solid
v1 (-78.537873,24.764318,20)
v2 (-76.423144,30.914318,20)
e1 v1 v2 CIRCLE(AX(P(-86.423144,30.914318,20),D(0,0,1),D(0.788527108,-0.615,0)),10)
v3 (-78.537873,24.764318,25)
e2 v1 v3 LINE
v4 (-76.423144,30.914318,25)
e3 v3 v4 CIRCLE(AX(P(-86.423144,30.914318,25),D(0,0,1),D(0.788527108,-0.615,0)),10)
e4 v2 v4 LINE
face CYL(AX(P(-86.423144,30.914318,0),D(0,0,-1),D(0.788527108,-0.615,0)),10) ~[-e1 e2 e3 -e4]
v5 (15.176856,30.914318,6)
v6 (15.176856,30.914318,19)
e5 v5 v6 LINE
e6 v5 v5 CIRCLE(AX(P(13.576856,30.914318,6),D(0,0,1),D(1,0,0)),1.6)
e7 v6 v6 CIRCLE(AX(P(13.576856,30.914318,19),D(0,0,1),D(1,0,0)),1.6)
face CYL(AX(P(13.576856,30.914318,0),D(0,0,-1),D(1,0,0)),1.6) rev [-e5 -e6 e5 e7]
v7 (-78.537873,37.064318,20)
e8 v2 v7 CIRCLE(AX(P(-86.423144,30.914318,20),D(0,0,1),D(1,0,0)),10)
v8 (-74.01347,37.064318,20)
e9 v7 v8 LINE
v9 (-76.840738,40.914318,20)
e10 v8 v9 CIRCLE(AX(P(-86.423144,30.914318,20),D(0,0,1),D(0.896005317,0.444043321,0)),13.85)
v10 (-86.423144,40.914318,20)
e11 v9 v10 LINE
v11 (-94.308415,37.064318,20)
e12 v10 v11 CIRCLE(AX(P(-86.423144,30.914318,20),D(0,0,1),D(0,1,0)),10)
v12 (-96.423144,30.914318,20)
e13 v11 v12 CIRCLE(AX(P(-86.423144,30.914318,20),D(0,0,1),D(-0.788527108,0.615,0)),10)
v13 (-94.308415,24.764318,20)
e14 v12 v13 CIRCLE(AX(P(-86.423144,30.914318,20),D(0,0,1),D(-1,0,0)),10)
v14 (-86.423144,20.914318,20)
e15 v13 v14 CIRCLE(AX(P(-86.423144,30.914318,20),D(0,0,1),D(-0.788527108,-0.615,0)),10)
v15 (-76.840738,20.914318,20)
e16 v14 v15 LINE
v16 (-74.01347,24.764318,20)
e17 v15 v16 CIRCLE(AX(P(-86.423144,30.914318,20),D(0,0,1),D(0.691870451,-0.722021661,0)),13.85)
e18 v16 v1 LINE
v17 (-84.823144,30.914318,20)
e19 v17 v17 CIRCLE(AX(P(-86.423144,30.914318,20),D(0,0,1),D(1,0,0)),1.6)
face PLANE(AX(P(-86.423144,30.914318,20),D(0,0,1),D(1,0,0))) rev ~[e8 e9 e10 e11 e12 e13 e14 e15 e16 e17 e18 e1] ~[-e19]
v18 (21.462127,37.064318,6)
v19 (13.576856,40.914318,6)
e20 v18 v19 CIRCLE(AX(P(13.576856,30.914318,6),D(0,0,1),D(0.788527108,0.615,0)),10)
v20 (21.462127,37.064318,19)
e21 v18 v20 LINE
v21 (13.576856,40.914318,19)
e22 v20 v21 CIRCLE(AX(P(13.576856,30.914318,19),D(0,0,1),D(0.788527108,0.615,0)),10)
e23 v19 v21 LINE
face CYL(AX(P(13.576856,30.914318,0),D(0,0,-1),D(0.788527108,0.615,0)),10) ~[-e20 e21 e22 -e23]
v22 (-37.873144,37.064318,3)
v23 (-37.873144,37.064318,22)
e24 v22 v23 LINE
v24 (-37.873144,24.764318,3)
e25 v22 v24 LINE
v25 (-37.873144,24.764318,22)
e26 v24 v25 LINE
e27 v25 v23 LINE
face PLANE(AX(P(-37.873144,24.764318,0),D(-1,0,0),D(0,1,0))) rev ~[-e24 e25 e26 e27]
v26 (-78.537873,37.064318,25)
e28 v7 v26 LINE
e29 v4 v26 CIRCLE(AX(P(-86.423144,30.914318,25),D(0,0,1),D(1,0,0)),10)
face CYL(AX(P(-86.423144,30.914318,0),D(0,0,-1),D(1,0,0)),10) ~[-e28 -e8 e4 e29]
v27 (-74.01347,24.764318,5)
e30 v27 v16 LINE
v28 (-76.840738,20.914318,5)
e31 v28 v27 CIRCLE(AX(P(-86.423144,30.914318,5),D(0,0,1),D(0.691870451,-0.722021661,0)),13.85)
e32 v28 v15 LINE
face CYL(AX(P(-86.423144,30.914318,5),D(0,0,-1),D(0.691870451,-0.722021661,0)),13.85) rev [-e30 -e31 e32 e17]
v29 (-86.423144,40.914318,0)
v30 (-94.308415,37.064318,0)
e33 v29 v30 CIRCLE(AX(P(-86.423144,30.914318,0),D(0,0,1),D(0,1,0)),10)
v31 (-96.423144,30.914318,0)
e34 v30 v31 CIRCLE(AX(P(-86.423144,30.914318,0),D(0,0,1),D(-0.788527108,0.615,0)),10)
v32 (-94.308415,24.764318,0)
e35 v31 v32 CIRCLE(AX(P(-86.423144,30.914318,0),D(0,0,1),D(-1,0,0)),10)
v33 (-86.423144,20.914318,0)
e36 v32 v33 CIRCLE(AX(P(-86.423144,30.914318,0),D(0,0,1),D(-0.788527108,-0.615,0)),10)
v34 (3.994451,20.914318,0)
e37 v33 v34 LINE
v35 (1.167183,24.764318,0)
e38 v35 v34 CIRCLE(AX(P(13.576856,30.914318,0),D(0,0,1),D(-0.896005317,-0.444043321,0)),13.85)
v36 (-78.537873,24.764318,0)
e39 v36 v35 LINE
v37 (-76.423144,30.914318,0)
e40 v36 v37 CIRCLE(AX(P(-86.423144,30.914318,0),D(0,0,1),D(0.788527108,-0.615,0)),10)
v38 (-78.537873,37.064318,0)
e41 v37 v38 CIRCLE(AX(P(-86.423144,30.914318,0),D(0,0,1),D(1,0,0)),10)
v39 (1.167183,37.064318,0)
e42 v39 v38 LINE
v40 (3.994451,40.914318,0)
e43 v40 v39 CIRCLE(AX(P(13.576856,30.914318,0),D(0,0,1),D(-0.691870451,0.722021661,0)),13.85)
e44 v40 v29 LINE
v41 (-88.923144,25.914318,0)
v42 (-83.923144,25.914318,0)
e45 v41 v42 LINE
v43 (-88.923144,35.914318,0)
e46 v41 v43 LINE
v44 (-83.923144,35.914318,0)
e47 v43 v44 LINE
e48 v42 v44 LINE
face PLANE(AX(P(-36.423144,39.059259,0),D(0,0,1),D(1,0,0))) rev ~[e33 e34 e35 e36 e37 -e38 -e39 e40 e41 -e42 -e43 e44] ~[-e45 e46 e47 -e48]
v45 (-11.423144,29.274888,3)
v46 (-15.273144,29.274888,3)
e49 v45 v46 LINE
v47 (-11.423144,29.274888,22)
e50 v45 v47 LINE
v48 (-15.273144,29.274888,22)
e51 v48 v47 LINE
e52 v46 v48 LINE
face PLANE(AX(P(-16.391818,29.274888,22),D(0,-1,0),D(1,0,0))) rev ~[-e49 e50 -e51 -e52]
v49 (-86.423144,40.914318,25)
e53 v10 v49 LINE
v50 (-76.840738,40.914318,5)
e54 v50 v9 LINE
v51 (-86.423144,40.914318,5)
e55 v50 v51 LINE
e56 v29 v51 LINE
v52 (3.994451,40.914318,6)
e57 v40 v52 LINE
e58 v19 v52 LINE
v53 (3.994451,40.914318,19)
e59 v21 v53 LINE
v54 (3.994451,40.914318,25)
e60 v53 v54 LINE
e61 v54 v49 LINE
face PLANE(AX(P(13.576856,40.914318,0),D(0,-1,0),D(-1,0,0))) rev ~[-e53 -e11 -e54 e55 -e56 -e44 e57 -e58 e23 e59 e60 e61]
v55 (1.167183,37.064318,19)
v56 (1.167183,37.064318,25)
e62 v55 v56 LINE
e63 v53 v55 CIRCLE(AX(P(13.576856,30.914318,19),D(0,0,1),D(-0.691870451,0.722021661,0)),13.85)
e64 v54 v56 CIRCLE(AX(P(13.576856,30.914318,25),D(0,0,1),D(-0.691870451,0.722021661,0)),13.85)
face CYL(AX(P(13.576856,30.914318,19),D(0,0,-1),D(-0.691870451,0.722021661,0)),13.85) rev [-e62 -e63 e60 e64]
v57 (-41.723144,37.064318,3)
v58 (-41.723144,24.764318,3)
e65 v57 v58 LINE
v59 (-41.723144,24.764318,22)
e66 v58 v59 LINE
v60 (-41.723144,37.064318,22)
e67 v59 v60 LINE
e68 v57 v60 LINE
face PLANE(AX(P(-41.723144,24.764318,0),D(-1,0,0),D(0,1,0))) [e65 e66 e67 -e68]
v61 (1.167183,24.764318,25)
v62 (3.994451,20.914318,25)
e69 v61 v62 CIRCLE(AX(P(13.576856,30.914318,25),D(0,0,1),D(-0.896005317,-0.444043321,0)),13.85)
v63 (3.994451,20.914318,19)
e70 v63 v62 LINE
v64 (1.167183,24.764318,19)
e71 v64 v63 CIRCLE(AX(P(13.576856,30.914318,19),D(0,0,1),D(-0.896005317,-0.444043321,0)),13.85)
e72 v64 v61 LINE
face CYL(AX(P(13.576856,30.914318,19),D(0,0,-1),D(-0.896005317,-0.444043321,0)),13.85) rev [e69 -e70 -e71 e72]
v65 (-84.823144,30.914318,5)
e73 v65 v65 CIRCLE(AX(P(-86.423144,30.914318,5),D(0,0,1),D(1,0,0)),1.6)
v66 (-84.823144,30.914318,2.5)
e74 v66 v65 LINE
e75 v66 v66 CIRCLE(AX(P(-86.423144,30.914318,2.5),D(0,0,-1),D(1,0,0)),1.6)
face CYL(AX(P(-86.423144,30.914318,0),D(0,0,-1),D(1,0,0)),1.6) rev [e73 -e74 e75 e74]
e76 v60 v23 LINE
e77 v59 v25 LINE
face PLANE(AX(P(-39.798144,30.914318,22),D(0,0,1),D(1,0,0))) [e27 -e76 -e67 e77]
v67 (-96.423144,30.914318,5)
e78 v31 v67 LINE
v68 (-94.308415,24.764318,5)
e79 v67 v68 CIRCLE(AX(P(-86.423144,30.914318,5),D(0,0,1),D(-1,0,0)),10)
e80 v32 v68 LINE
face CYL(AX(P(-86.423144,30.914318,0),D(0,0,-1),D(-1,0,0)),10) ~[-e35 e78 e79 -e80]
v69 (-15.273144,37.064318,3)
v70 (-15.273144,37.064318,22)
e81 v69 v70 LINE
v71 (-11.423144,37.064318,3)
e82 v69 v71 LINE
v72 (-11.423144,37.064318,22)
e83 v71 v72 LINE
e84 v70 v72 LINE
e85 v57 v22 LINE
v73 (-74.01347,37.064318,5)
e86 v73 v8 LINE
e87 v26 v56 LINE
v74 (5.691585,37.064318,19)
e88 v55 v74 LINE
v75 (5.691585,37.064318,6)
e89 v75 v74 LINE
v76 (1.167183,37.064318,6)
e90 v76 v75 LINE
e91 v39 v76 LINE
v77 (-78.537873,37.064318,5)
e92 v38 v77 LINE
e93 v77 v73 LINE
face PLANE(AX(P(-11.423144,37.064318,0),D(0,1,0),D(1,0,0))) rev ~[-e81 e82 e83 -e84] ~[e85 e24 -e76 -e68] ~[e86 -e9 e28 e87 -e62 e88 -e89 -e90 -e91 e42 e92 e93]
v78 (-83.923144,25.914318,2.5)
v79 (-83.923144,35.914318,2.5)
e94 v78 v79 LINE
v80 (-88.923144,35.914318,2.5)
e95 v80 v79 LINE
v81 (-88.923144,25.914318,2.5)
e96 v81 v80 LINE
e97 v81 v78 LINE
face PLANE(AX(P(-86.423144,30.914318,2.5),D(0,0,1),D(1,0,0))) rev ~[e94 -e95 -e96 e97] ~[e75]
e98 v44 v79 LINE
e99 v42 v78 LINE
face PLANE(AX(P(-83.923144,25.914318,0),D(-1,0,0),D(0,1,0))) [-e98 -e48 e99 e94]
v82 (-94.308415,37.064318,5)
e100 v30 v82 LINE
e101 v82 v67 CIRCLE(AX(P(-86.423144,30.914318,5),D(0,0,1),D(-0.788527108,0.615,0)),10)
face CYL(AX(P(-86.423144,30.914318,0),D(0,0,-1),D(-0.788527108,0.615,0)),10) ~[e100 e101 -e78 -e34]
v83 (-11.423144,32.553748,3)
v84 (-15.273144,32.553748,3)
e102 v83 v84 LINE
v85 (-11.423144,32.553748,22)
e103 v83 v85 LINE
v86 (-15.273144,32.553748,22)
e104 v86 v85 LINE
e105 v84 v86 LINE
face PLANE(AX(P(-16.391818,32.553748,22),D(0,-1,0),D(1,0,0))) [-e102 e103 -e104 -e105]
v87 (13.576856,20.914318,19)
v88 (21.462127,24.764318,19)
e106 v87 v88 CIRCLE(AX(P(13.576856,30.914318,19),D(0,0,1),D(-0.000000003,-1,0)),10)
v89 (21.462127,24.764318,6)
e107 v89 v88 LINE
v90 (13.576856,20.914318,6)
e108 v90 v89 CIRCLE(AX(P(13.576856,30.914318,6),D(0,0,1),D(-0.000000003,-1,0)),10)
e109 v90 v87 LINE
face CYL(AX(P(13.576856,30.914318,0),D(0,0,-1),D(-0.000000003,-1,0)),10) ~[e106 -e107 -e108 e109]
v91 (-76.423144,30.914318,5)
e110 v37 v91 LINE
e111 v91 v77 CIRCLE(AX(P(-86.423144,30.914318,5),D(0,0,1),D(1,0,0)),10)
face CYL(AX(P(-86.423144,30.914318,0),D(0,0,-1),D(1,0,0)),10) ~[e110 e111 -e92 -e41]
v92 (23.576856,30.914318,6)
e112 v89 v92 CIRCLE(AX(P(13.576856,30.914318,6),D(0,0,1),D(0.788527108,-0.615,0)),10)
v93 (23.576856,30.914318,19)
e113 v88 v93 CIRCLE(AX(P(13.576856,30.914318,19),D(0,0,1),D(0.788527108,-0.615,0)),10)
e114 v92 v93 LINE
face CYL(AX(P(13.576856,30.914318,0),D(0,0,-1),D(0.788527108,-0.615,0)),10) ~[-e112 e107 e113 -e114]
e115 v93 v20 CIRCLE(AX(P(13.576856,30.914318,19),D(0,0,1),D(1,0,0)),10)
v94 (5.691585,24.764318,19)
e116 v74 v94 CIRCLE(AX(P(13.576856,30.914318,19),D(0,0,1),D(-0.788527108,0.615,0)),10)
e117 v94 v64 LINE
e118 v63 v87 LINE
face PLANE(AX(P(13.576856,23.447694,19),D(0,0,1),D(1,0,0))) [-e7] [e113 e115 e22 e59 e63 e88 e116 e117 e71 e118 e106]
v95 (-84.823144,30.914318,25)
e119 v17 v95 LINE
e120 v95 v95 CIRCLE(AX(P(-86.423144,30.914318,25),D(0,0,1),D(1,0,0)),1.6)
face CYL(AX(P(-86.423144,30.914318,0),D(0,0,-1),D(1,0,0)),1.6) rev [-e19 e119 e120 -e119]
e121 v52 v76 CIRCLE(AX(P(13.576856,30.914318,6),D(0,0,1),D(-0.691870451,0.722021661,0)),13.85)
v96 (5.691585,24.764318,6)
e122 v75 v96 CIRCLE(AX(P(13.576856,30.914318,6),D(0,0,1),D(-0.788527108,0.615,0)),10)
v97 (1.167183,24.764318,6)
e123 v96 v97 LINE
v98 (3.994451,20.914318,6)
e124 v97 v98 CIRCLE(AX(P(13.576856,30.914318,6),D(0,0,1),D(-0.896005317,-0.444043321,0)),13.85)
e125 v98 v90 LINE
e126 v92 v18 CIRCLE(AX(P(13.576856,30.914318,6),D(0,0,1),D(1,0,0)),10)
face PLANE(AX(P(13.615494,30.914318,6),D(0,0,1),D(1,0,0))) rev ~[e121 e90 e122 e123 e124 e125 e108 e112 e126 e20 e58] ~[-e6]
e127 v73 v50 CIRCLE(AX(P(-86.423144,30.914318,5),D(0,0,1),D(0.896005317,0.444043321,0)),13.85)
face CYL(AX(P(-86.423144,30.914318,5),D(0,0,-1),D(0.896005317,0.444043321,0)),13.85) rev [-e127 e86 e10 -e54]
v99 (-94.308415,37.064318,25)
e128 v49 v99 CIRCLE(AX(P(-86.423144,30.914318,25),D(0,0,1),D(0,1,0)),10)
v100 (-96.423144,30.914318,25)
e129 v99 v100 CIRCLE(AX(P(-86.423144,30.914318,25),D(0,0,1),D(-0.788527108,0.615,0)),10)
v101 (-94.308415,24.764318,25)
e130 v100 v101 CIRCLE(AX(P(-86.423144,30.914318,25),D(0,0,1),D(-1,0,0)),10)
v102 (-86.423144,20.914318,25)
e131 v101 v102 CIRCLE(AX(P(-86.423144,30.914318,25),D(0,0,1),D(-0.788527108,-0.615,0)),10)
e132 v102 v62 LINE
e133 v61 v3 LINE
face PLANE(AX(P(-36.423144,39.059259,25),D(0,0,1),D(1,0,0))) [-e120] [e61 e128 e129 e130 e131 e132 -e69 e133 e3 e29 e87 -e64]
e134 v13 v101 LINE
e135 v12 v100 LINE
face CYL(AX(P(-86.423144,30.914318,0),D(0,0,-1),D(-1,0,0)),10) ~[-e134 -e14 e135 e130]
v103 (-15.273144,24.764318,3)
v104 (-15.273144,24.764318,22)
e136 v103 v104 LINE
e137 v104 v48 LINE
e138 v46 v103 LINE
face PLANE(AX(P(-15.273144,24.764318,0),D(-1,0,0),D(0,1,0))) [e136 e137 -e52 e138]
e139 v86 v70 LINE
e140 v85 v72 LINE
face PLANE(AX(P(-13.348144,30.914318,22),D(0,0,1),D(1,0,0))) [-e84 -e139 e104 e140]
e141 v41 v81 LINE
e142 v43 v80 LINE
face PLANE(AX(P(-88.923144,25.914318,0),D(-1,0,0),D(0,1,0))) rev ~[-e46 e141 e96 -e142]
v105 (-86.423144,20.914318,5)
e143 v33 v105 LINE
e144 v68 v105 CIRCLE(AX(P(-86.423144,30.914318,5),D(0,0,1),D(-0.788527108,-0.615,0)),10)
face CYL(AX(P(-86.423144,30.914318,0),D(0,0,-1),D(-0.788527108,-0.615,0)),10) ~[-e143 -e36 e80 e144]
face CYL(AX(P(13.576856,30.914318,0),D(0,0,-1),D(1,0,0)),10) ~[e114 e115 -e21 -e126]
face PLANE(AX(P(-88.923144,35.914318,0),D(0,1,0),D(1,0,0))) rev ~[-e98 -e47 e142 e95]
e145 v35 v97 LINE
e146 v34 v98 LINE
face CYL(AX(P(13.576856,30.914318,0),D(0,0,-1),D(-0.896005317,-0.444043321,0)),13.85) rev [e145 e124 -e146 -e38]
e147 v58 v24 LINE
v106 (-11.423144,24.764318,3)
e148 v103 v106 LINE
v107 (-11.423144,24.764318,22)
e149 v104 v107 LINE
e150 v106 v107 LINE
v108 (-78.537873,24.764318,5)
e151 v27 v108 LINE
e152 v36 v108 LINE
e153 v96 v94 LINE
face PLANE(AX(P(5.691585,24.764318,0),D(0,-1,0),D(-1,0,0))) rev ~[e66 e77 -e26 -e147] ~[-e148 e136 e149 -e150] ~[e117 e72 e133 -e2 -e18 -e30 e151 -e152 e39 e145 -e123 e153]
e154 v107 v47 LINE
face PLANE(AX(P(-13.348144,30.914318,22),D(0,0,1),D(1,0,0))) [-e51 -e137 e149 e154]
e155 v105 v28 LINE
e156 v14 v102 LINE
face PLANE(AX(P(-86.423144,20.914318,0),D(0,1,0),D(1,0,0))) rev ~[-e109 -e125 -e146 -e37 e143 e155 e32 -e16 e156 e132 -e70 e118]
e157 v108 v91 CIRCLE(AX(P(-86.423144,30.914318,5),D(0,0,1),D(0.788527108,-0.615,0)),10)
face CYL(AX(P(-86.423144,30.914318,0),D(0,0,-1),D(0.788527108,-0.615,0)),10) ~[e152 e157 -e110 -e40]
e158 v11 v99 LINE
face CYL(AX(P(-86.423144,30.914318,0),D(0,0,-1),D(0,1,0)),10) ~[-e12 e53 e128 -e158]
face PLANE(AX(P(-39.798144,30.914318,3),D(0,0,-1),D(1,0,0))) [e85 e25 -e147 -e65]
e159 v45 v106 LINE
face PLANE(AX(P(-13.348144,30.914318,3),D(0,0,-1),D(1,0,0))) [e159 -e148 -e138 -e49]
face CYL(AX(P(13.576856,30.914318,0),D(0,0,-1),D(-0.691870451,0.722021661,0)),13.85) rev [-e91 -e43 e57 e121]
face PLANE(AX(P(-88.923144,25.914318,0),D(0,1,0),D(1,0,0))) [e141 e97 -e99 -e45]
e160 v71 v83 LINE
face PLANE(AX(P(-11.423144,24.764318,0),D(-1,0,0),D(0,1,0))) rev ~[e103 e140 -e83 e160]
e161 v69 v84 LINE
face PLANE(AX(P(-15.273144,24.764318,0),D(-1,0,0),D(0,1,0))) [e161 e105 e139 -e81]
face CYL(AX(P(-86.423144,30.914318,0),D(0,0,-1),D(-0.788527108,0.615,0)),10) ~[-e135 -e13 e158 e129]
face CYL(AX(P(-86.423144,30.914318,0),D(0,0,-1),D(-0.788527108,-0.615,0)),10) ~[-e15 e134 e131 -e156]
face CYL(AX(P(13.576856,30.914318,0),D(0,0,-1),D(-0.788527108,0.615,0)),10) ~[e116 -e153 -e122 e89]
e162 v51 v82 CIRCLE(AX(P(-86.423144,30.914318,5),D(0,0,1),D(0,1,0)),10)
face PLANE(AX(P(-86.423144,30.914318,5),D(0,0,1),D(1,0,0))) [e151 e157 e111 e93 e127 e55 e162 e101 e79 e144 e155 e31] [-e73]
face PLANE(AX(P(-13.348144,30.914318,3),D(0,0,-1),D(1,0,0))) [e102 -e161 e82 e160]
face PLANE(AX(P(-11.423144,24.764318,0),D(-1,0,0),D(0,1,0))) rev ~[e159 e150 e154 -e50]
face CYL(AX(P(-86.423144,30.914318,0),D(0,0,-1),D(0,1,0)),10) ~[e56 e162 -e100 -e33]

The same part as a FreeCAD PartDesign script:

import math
import FreeCAD as App
import Part
import Sketcher


def add_polygon(sketch, points):
    """Adds a closed chain of lines whose ends are joined by coincident constraints."""
    first, n = sketch.GeometryCount, len(points)
    for a, b in zip(points, points[1:] + points[:1]):
        sketch.addGeometry(Part.LineSegment(App.Vector(*a, 0), App.Vector(*b, 0)), False)
    for i in range(n):
        sketch.addConstraint(Sketcher.Constraint("Coincident", first + i, 2, first + (i + 1) % n, 1))

doc = App.newDocument("Part")
body = doc.addObject("PartDesign::Body", "Body")

# Sketch on XY plane
sketch1 = body.newObject("Sketcher::SketchObject", "Sketch")
sketch1.AttachmentSupport = (doc.getObject("XY_Plane"), [""])
sketch1.MapMode = "FlatFace"
sketch1.addGeometry(Part.ArcOfCircle(Part.Circle(App.Vector(-86.4, 30.9, 0), App.Vector(0, 0, 1), 10), math.radians(90), math.radians(142)), False)  # 0
sketch1.addGeometry(Part.ArcOfCircle(Part.Circle(App.Vector(-86.4, 30.9, 0), App.Vector(0, 0, 1), 10), math.radians(142), math.radians(180)), False)  # 1
sketch1.addGeometry(Part.ArcOfCircle(Part.Circle(App.Vector(-86.4, 30.9, 0), App.Vector(0, 0, 1), 10), math.radians(180), math.radians(218)), False)  # 2
sketch1.addGeometry(Part.ArcOfCircle(Part.Circle(App.Vector(-86.4, 30.9, 0), App.Vector(0, 0, 1), 10), math.radians(-142), math.radians(-90)), False)  # 3
sketch1.addGeometry(Part.LineSegment(App.Vector(-86.4, 20.9, 0), App.Vector(13.6, 20.9, 0)), False)  # 4
sketch1.addGeometry(Part.ArcOfCircle(Part.Circle(App.Vector(13.6, 30.9, 0), App.Vector(0, 0, 1), 10), math.radians(-90), math.radians(-38)), False)  # 5
sketch1.addGeometry(Part.ArcOfCircle(Part.Circle(App.Vector(13.6, 30.9, 0), App.Vector(0, 0, 1), 10), math.radians(-38), math.radians(0)), False)  # 6
sketch1.addGeometry(Part.ArcOfCircle(Part.Circle(App.Vector(13.6, 30.9, 0), App.Vector(0, 0, 1), 10), math.radians(0), math.radians(38)), False)  # 7
sketch1.addGeometry(Part.ArcOfCircle(Part.Circle(App.Vector(13.6, 30.9, 0), App.Vector(0, 0, 1), 10), math.radians(38), math.radians(90)), False)  # 8
sketch1.addGeometry(Part.LineSegment(App.Vector(13.6, 40.9, 0), App.Vector(-86.4, 40.9, 0)), False)  # 9
sketch1.addGeometry(Part.LineSegment(App.Vector(-11.4, 24.8, 0), App.Vector(-11.4, 37.1, 0)), False)  # 10
sketch1.addGeometry(Part.LineSegment(App.Vector(-11.4, 37.1, 0), App.Vector(5.7, 37.1, 0)), False)  # 11
sketch1.addGeometry(Part.ArcOfCircle(Part.Circle(App.Vector(13.6, 30.9, 0), App.Vector(0, 0, 1), 10), math.radians(142), math.radians(218)), False)  # 12
sketch1.addGeometry(Part.LineSegment(App.Vector(5.7, 24.8, 0), App.Vector(-11.4, 24.8, 0)), False)  # 13
add_polygon(sketch1, [(-15.3, 24.8), (-37.9, 24.8), (-37.9, 37.1), (-15.3, 37.1)])  # lines 14-17
sketch1.addGeometry(Part.LineSegment(App.Vector(-41.7, 24.8, 0), App.Vector(-78.5, 24.8, 0)), False)  # 18
sketch1.addGeometry(Part.ArcOfCircle(Part.Circle(App.Vector(-86.4, 30.9, 0), App.Vector(0, 0, 1), 10), math.radians(-38), math.radians(0)), False)  # 19
sketch1.addGeometry(Part.ArcOfCircle(Part.Circle(App.Vector(-86.4, 30.9, 0), App.Vector(0, 0, 1), 10), math.radians(0), math.radians(38)), False)  # 20
sketch1.addGeometry(Part.LineSegment(App.Vector(-78.5, 37.1, 0), App.Vector(-41.7, 37.1, 0)), False)  # 21
sketch1.addGeometry(Part.LineSegment(App.Vector(-41.7, 37.1, 0), App.Vector(-41.7, 24.8, 0)), False)  # 22
sketch1.addGeometry(Part.Circle(App.Vector(-86.4, 30.9, 0), App.Vector(0, 0, 1), 1.6), False)  # 23
sketch1.addGeometry(Part.Circle(App.Vector(13.6, 30.9, 0), App.Vector(0, 0, 1), 1.6), False)  # 24
sketch1.addConstraint(Sketcher.Constraint("Tangent", 0, 2, 1, 1))
sketch1.addConstraint(Sketcher.Constraint("Tangent", 1, 2, 2, 1))
sketch1.addConstraint(Sketcher.Constraint("Tangent", 2, 2, 3, 1))
sketch1.addConstraint(Sketcher.Constraint("Tangent", 3, 2, 4, 1))
sketch1.addConstraint(Sketcher.Constraint("Tangent", 4, 2, 5, 1))
sketch1.addConstraint(Sketcher.Constraint("Tangent", 5, 2, 6, 1))
sketch1.addConstraint(Sketcher.Constraint("Tangent", 6, 2, 7, 1))
sketch1.addConstraint(Sketcher.Constraint("Tangent", 7, 2, 8, 1))
sketch1.addConstraint(Sketcher.Constraint("Tangent", 8, 2, 9, 1))
sketch1.addConstraint(Sketcher.Constraint("Tangent", 9, 2, 0, 1))
sketch1.addConstraint(Sketcher.Constraint("Coincident", 10, 2, 11, 1))
sketch1.addConstraint(Sketcher.Constraint("Coincident", 11, 2, 12, 1))
sketch1.addConstraint(Sketcher.Constraint("Coincident", 12, 2, 13, 1))
sketch1.addConstraint(Sketcher.Constraint("Coincident", 13, 2, 10, 1))
sketch1.addConstraint(Sketcher.Constraint("Coincident", 18, 2, 19, 1))
sketch1.addConstraint(Sketcher.Constraint("Tangent", 19, 2, 20, 1))
sketch1.addConstraint(Sketcher.Constraint("Coincident", 20, 2, 21, 1))
sketch1.addConstraint(Sketcher.Constraint("Coincident", 21, 2, 22, 1))
sketch1.addConstraint(Sketcher.Constraint("Coincident", 22, 2, 18, 1))
sketch1.addConstraint(Sketcher.Constraint("Horizontal", 4))
sketch1.addConstraint(Sketcher.Constraint("Horizontal", 9))
sketch1.addConstraint(Sketcher.Constraint("Vertical", 10))
sketch1.addConstraint(Sketcher.Constraint("Horizontal", 11))
sketch1.addConstraint(Sketcher.Constraint("Horizontal", 13))
sketch1.addConstraint(Sketcher.Constraint("Horizontal", 14))
sketch1.addConstraint(Sketcher.Constraint("Vertical", 15))
sketch1.addConstraint(Sketcher.Constraint("Horizontal", 16))
sketch1.addConstraint(Sketcher.Constraint("Vertical", 17))
sketch1.addConstraint(Sketcher.Constraint("Horizontal", 18))
sketch1.addConstraint(Sketcher.Constraint("Horizontal", 21))
sketch1.addConstraint(Sketcher.Constraint("Vertical", 22))
sketch1.addConstraint(Sketcher.Constraint("Coincident", 2, 3, 0, 3))
sketch1.addConstraint(Sketcher.Constraint("Coincident", 7, 3, 5, 3))
sketch1.addConstraint(Sketcher.Constraint("Coincident", 12, 3, 5, 3))
sketch1.addConstraint(Sketcher.Constraint("Coincident", 19, 3, 0, 3))
sketch1.addConstraint(Sketcher.Constraint("Coincident", 23, 3, 0, 3))
sketch1.addConstraint(Sketcher.Constraint("Coincident", 24, 3, 5, 3))
sketch1.addConstraint(Sketcher.Constraint("Equal", 2, 3))
sketch1.addConstraint(Sketcher.Constraint("Equal", 3, 5))
sketch1.addConstraint(Sketcher.Constraint("Equal", 8, 12))
sketch1.addConstraint(Sketcher.Constraint("Equal", 12, 19))
sketch1.addConstraint(Sketcher.Constraint("Equal", 19, 20))
sketch1.addConstraint(Sketcher.Constraint("Equal", 23, 24))
sketch1.addConstraint(Sketcher.Constraint("Horizontal", 24, 3, 1, 2))
sketch1.addConstraint(Sketcher.Constraint("Horizontal", 2, 2, 5, 2))
sketch1.addConstraint(Sketcher.Constraint("Horizontal", 1, 2, 6, 2))
sketch1.addConstraint(Sketcher.Constraint("Horizontal", 0, 2, 7, 2))
sketch1.addConstraint(Sketcher.Constraint("Horizontal", 7, 2, 10, 2))
sketch1.addConstraint(Sketcher.Constraint("Horizontal", 5, 2, 12, 2))
sketch1.addConstraint(Sketcher.Constraint("Horizontal", 13, 2, 14, 2))
sketch1.addConstraint(Sketcher.Constraint("Horizontal", 11, 2, 15, 2))
sketch1.addConstraint(Sketcher.Constraint("Horizontal", 17, 2, 18, 2))
sketch1.addConstraint(Sketcher.Constraint("Horizontal", 6, 2, 19, 2))
sketch1.addConstraint(Sketcher.Constraint("Horizontal", 16, 2, 20, 2))
sketch1.addConstraint(Sketcher.Constraint("Vertical", 0, 2, 2, 2))
sketch1.addConstraint(Sketcher.Constraint("Radius", 0, 10.0))
sketch1.addConstraint(Sketcher.Constraint("Diameter", 23, 3.2))
sketch1.addConstraint(Sketcher.Constraint("DistanceX", 4, 1, 4, 2, 100.0))
sketch1.addConstraint(Sketcher.Constraint("DistanceX", 14, 2, 14, 1, 22.6))
sketch1.addConstraint(Sketcher.Constraint("DistanceY", 10, 1, 10, 2, 12.3))
sketch1.addConstraint(Sketcher.Constraint("DistanceX", 10, 2, 8, 2, 25.0))
sketch1.addConstraint(Sketcher.Constraint("DistanceX", 21, 2, 10, 2, 30.3))
sketch1.addConstraint(Sketcher.Constraint("DistanceX", 14, 2, 13, 2, 26.45))
sketch1.addConstraint(Sketcher.Constraint("DistanceY", -1, 1, 0, 3, 30.914318))
sketch1.addConstraint(Sketcher.Constraint("DistanceX", 0, 3, -1, 1, 86.423144))
pad1 = body.newObject("PartDesign::Pad", "Pad")
pad1.Profile = sketch1
pad1.Length = 25

# Sketch on XY plane
sketch2 = body.newObject("Sketcher::SketchObject", "Sketch001")
sketch2.AttachmentSupport = (doc.getObject("XY_Plane"), [""])
sketch2.MapMode = "FlatFace"
sketch2.AttachmentOffset = App.Placement(App.Vector(0, 0, 25), App.Rotation())
add_polygon(sketch2, [(-41.7, 37.1), (-41.7, 24.8), (-37.9, 24.8), (-37.9, 37.1)])  # lines 0-3
add_polygon(sketch2, [(-15.3, 37.1), (-15.3, 24.8), (-11.4, 24.8), (-11.4, 37.1)])  # lines 4-7
sketch2.addConstraint(Sketcher.Constraint("Vertical", 0))
sketch2.addConstraint(Sketcher.Constraint("Horizontal", 1))
sketch2.addConstraint(Sketcher.Constraint("Vertical", 2))
sketch2.addConstraint(Sketcher.Constraint("Horizontal", 3))
sketch2.addConstraint(Sketcher.Constraint("Vertical", 4))
sketch2.addConstraint(Sketcher.Constraint("Horizontal", 5))
sketch2.addConstraint(Sketcher.Constraint("Vertical", 6))
sketch2.addConstraint(Sketcher.Constraint("Horizontal", 7))
sketch2.addConstraint(Sketcher.Constraint("Horizontal", 1, 2, 4, 2))
sketch2.addConstraint(Sketcher.Constraint("Horizontal", 3, 2, 6, 2))
sketch2.addConstraint(Sketcher.Constraint("Equal", 3, 5))
sketch2.addConstraint(Sketcher.Constraint("DistanceY", 0, 2, 0, 1, 12.3))
sketch2.addConstraint(Sketcher.Constraint("DistanceX", 1, 1, 1, 2, 3.85))
sketch2.addConstraint(Sketcher.Constraint("DistanceX", 1, 2, 4, 2, 22.6))
sketch2.addConstraint(Sketcher.Constraint("DistanceY", -1, 1, 0, 2, 24.764318))
sketch2.addConstraint(Sketcher.Constraint("DistanceX", 0, 2, -1, 1, 41.723144))
pocket1 = body.newObject("PartDesign::Pocket", "Pocket")
pocket1.Profile = sketch2
pocket1.Length = 3

# Sketch on XY plane
sketch3 = body.newObject("Sketcher::SketchObject", "Sketch002")
sketch3.AttachmentSupport = (doc.getObject("XY_Plane"), [""])
sketch3.MapMode = "FlatFace"
add_polygon(sketch3, [(-15.3, 24.8), (-15.3, 37.1), (-11.4, 37.1), (-11.4, 24.8)])  # lines 0-3
add_polygon(sketch3, [(-41.7, 24.8), (-41.7, 37.1), (-37.9, 37.1), (-37.9, 24.8)])  # lines 4-7
sketch3.addConstraint(Sketcher.Constraint("Vertical", 0))
sketch3.addConstraint(Sketcher.Constraint("Horizontal", 1))
sketch3.addConstraint(Sketcher.Constraint("Vertical", 2))
sketch3.addConstraint(Sketcher.Constraint("Horizontal", 3))
sketch3.addConstraint(Sketcher.Constraint("Vertical", 4))
sketch3.addConstraint(Sketcher.Constraint("Horizontal", 5))
sketch3.addConstraint(Sketcher.Constraint("Vertical", 6))
sketch3.addConstraint(Sketcher.Constraint("Horizontal", 7))
sketch3.addConstraint(Sketcher.Constraint("Horizontal", 1, 2, 4, 2))
sketch3.addConstraint(Sketcher.Constraint("Horizontal", 3, 2, 6, 2))
sketch3.addConstraint(Sketcher.Constraint("Equal", 3, 5))
sketch3.addConstraint(Sketcher.Constraint("DistanceY", 0, 1, 0, 2, 12.3))
sketch3.addConstraint(Sketcher.Constraint("DistanceX", 1, 1, 1, 2, 3.85))
sketch3.addConstraint(Sketcher.Constraint("DistanceX", 4, 2, 1, 2, 30.3))
sketch3.addConstraint(Sketcher.Constraint("DistanceY", -1, 1, 0, 2, 37.064318))
sketch3.addConstraint(Sketcher.Constraint("DistanceX", 0, 2, -1, 1, 15.273144))
pocket2 = body.newObject("PartDesign::Pocket", "Pocket001")
pocket2.Profile = sketch3
pocket2.Length = 3
pocket2.Reversed = True

# Sketch on XY plane
sketch4 = body.newObject("Sketcher::SketchObject", "Sketch003")
sketch4.AttachmentSupport = (doc.getObject("XY_Plane"), [""])
sketch4.MapMode = "FlatFace"
sketch4.AttachmentOffset = App.Placement(App.Vector(0, 0, 19), App.Rotation())
sketch4.addGeometry(Part.ArcOfCircle(Part.Circle(App.Vector(13.6, 30.9, 0), App.Vector(0, 0, 1), 10), math.radians(-90), math.radians(-38)), False)
sketch4.addGeometry(Part.ArcOfCircle(Part.Circle(App.Vector(13.6, 30.9, 0), App.Vector(0, 0, 1), 10), math.radians(-38), math.radians(0)), False)
sketch4.addGeometry(Part.ArcOfCircle(Part.Circle(App.Vector(13.6, 30.9, 0), App.Vector(0, 0, 1), 10), math.radians(0), math.radians(38)), False)
sketch4.addGeometry(Part.ArcOfCircle(Part.Circle(App.Vector(13.6, 30.9, 0), App.Vector(0, 0, 1), 10), math.radians(38), math.radians(90)), False)
sketch4.addGeometry(Part.LineSegment(App.Vector(13.6, 40.9, 0), App.Vector(4, 40.9, 0)), False)
sketch4.addGeometry(Part.ArcOfCircle(Part.Circle(App.Vector(13.6, 30.9, 0), App.Vector(0, 0, 1), 13.9), math.radians(133.78), math.radians(153.64)), False)
sketch4.addGeometry(Part.LineSegment(App.Vector(1.2, 37.1, 0), App.Vector(5.7, 37.1, 0)), False)
sketch4.addGeometry(Part.ArcOfCircle(Part.Circle(App.Vector(13.6, 30.9, 0), App.Vector(0, 0, 1), 10), math.radians(142), math.radians(218)), False)
sketch4.addGeometry(Part.LineSegment(App.Vector(5.7, 24.8, 0), App.Vector(1.2, 24.8, 0)), False)
sketch4.addGeometry(Part.ArcOfCircle(Part.Circle(App.Vector(13.6, 30.9, 0), App.Vector(0, 0, 1), 13.9), math.radians(-153.64), math.radians(-133.78)), False)
sketch4.addGeometry(Part.LineSegment(App.Vector(4, 20.9, 0), App.Vector(13.6, 20.9, 0)), False)
sketch4.addGeometry(Part.Circle(App.Vector(13.6, 30.9, 0), App.Vector(0, 0, 1), 1.6), False)
sketch4.addConstraint(Sketcher.Constraint("Tangent", 0, 2, 1, 1))
sketch4.addConstraint(Sketcher.Constraint("Tangent", 1, 2, 2, 1))
sketch4.addConstraint(Sketcher.Constraint("Tangent", 2, 2, 3, 1))
sketch4.addConstraint(Sketcher.Constraint("Tangent", 3, 2, 4, 1))
sketch4.addConstraint(Sketcher.Constraint("Coincident", 4, 2, 5, 1))
sketch4.addConstraint(Sketcher.Constraint("Coincident", 5, 2, 6, 1))
sketch4.addConstraint(Sketcher.Constraint("Coincident", 6, 2, 7, 1))
sketch4.addConstraint(Sketcher.Constraint("Coincident", 7, 2, 8, 1))
sketch4.addConstraint(Sketcher.Constraint("Coincident", 8, 2, 9, 1))
sketch4.addConstraint(Sketcher.Constraint("Coincident", 9, 2, 10, 1))
sketch4.addConstraint(Sketcher.Constraint("Tangent", 10, 2, 0, 1))
sketch4.addConstraint(Sketcher.Constraint("Horizontal", 4))
sketch4.addConstraint(Sketcher.Constraint("Horizontal", 6))
sketch4.addConstraint(Sketcher.Constraint("Horizontal", 8))
sketch4.addConstraint(Sketcher.Constraint("Horizontal", 10))
sketch4.addConstraint(Sketcher.Constraint("Coincident", 2, 3, 0, 3))
sketch4.addConstraint(Sketcher.Constraint("Coincident", 5, 3, 0, 3))
sketch4.addConstraint(Sketcher.Constraint("Coincident", 7, 3, 0, 3))
sketch4.addConstraint(Sketcher.Constraint("Coincident", 9, 3, 0, 3))
sketch4.addConstraint(Sketcher.Constraint("Coincident", 11, 3, 0, 3))
sketch4.addConstraint(Sketcher.Constraint("Equal", 2, 3))
sketch4.addConstraint(Sketcher.Constraint("Equal", 3, 7))
sketch4.addConstraint(Sketcher.Constraint("Equal", 5, 9))
sketch4.addConstraint(Sketcher.Constraint("Horizontal", 11, 3, 1, 2))
sketch4.addConstraint(Sketcher.Constraint("Horizontal", 2, 2, 5, 2))
sketch4.addConstraint(Sketcher.Constraint("Horizontal", 0, 2, 7, 2))
sketch4.addConstraint(Sketcher.Constraint("Vertical", 0, 2, 2, 2))
sketch4.addConstraint(Sketcher.Constraint("Radius", 0, 10.0))
sketch4.addConstraint(Sketcher.Constraint("Diameter", 11, 3.2))
sketch4.addConstraint(Sketcher.Constraint("Radius", 5, 13.85))
sketch4.addConstraint(Sketcher.Constraint("DistanceY", 8, 2, 5, 2, 12.3))
sketch4.addConstraint(Sketcher.Constraint("DistanceY", -1, 1, 0, 3, 30.914318))
sketch4.addConstraint(Sketcher.Constraint("DistanceX", -1, 1, 4, 2, 3.994451))
pocket3 = body.newObject("PartDesign::Pocket", "Pocket002")
pocket3.Profile = sketch4
pocket3.Length = 6
pocket3.Reversed = True

# Sketch on XY plane
sketch5 = body.newObject("Sketcher::SketchObject", "Sketch004")
sketch5.AttachmentSupport = (doc.getObject("XY_Plane"), [""])
sketch5.MapMode = "FlatFace"
sketch5.addGeometry(Part.ArcOfCircle(Part.Circle(App.Vector(13.6, 30.9, 0), App.Vector(0, 0, 1), 10), math.radians(0), math.radians(38)), False)
sketch5.addGeometry(Part.ArcOfCircle(Part.Circle(App.Vector(13.6, 30.9, 0), App.Vector(0, 0, 1), 10), math.radians(38), math.radians(90)), False)
sketch5.addGeometry(Part.LineSegment(App.Vector(13.6, 40.9, 0), App.Vector(4, 40.9, 0)), False)
sketch5.addGeometry(Part.ArcOfCircle(Part.Circle(App.Vector(13.6, 30.9, 0), App.Vector(0, 0, 1), 13.9), math.radians(133.78), math.radians(153.64)), False)
sketch5.addGeometry(Part.LineSegment(App.Vector(1.2, 37.1, 0), App.Vector(5.7, 37.1, 0)), False)
sketch5.addGeometry(Part.ArcOfCircle(Part.Circle(App.Vector(13.6, 30.9, 0), App.Vector(0, 0, 1), 10), math.radians(142), math.radians(218)), False)
sketch5.addGeometry(Part.LineSegment(App.Vector(5.7, 24.8, 0), App.Vector(1.2, 24.8, 0)), False)
sketch5.addGeometry(Part.ArcOfCircle(Part.Circle(App.Vector(13.6, 30.9, 0), App.Vector(0, 0, 1), 13.9), math.radians(-153.64), math.radians(-133.78)), False)
sketch5.addGeometry(Part.LineSegment(App.Vector(4, 20.9, 0), App.Vector(13.6, 20.9, 0)), False)
sketch5.addGeometry(Part.ArcOfCircle(Part.Circle(App.Vector(13.6, 30.9, 0), App.Vector(0, 0, 1), 10), math.radians(-90), math.radians(-38)), False)
sketch5.addGeometry(Part.ArcOfCircle(Part.Circle(App.Vector(13.6, 30.9, 0), App.Vector(0, 0, 1), 10), math.radians(-38), math.radians(0)), False)
sketch5.addGeometry(Part.Circle(App.Vector(13.6, 30.9, 0), App.Vector(0, 0, 1), 1.6), False)
sketch5.addConstraint(Sketcher.Constraint("Tangent", 0, 2, 1, 1))
sketch5.addConstraint(Sketcher.Constraint("Tangent", 1, 2, 2, 1))
sketch5.addConstraint(Sketcher.Constraint("Coincident", 2, 2, 3, 1))
sketch5.addConstraint(Sketcher.Constraint("Coincident", 3, 2, 4, 1))
sketch5.addConstraint(Sketcher.Constraint("Coincident", 4, 2, 5, 1))
sketch5.addConstraint(Sketcher.Constraint("Coincident", 5, 2, 6, 1))
sketch5.addConstraint(Sketcher.Constraint("Coincident", 6, 2, 7, 1))
sketch5.addConstraint(Sketcher.Constraint("Coincident", 7, 2, 8, 1))
sketch5.addConstraint(Sketcher.Constraint("Tangent", 8, 2, 9, 1))
sketch5.addConstraint(Sketcher.Constraint("Tangent", 9, 2, 10, 1))
sketch5.addConstraint(Sketcher.Constraint("Tangent", 10, 2, 0, 1))
sketch5.addConstraint(Sketcher.Constraint("Horizontal", 2))
sketch5.addConstraint(Sketcher.Constraint("Horizontal", 4))
sketch5.addConstraint(Sketcher.Constraint("Horizontal", 6))
sketch5.addConstraint(Sketcher.Constraint("Horizontal", 8))
sketch5.addConstraint(Sketcher.Constraint("Coincident", 3, 3, 0, 3))
sketch5.addConstraint(Sketcher.Constraint("Coincident", 5, 3, 0, 3))
sketch5.addConstraint(Sketcher.Constraint("Coincident", 7, 3, 0, 3))
sketch5.addConstraint(Sketcher.Constraint("Coincident", 9, 3, 0, 3))
sketch5.addConstraint(Sketcher.Constraint("Coincident", 11, 3, 0, 3))
sketch5.addConstraint(Sketcher.Constraint("Equal", 0, 1))
sketch5.addConstraint(Sketcher.Constraint("Equal", 1, 5))
sketch5.addConstraint(Sketcher.Constraint("Equal", 3, 7))
sketch5.addConstraint(Sketcher.Constraint("Horizontal", 0, 2, 3, 2))
sketch5.addConstraint(Sketcher.Constraint("Horizontal", 6, 2, 9, 2))
sketch5.addConstraint(Sketcher.Constraint("Horizontal", 11, 3, 10, 2))
sketch5.addConstraint(Sketcher.Constraint("Vertical", 4, 2, 5, 2))
sketch5.addConstraint(Sketcher.Constraint("Radius", 0, 10.0))
sketch5.addConstraint(Sketcher.Constraint("Diameter", 11, 3.2))
sketch5.addConstraint(Sketcher.Constraint("Radius", 3, 13.85))
sketch5.addConstraint(Sketcher.Constraint("DistanceY", 6, 2, 3, 2, 12.3))
sketch5.addConstraint(Sketcher.Constraint("DistanceY", -1, 1, 0, 3, 30.914318))
sketch5.addConstraint(Sketcher.Constraint("DistanceX", -1, 1, 2, 2, 3.994451))
pocket4 = body.newObject("PartDesign::Pocket", "Pocket003")
pocket4.Profile = sketch5
pocket4.Length = 6
pocket4.Reversed = True

# Sketch on XY plane
sketch6 = body.newObject("Sketcher::SketchObject", "Sketch005")
sketch6.AttachmentSupport = (doc.getObject("XY_Plane"), [""])
sketch6.MapMode = "FlatFace"
sketch6.AttachmentOffset = App.Placement(App.Vector(0, 0, 5), App.Rotation())
sketch6.addGeometry(Part.ArcOfCircle(Part.Circle(App.Vector(-86.4, 30.9, 0), App.Vector(0, 0, 1), 10), math.radians(0), math.radians(38)), False)
sketch6.addGeometry(Part.LineSegment(App.Vector(-78.5, 37.1, 0), App.Vector(-74, 37.1, 0)), False)
sketch6.addGeometry(Part.ArcOfCircle(Part.Circle(App.Vector(-86.4, 30.9, 0), App.Vector(0, 0, 1), 13.8), math.radians(26.36), math.radians(46.22)), False)
sketch6.addGeometry(Part.LineSegment(App.Vector(-76.8, 40.9, 0), App.Vector(-86.4, 40.9, 0)), False)
sketch6.addGeometry(Part.ArcOfCircle(Part.Circle(App.Vector(-86.4, 30.9, 0), App.Vector(0, 0, 1), 10), math.radians(90), math.radians(142)), False)
sketch6.addGeometry(Part.ArcOfCircle(Part.Circle(App.Vector(-86.4, 30.9, 0), App.Vector(0, 0, 1), 10), math.radians(142), math.radians(180)), False)
sketch6.addGeometry(Part.ArcOfCircle(Part.Circle(App.Vector(-86.4, 30.9, 0), App.Vector(0, 0, 1), 10), math.radians(180), math.radians(218)), False)
sketch6.addGeometry(Part.ArcOfCircle(Part.Circle(App.Vector(-86.4, 30.9, 0), App.Vector(0, 0, 1), 10), math.radians(-142), math.radians(-90)), False)
sketch6.addGeometry(Part.LineSegment(App.Vector(-86.4, 20.9, 0), App.Vector(-76.8, 20.9, 0)), False)
sketch6.addGeometry(Part.ArcOfCircle(Part.Circle(App.Vector(-86.4, 30.9, 0), App.Vector(0, 0, 1), 13.8), math.radians(-46.22), math.radians(-26.36)), False)
sketch6.addGeometry(Part.LineSegment(App.Vector(-74, 24.8, 0), App.Vector(-78.5, 24.8, 0)), False)
sketch6.addGeometry(Part.ArcOfCircle(Part.Circle(App.Vector(-86.4, 30.9, 0), App.Vector(0, 0, 1), 10), math.radians(-38), math.radians(0)), False)
sketch6.addGeometry(Part.Circle(App.Vector(-86.4, 30.9, 0), App.Vector(0, 0, 1), 1.6), False)
sketch6.addConstraint(Sketcher.Constraint("Coincident", 0, 2, 1, 1))
sketch6.addConstraint(Sketcher.Constraint("Coincident", 1, 2, 2, 1))
sketch6.addConstraint(Sketcher.Constraint("Coincident", 2, 2, 3, 1))
sketch6.addConstraint(Sketcher.Constraint("Tangent", 3, 2, 4, 1))
sketch6.addConstraint(Sketcher.Constraint("Tangent", 4, 2, 5, 1))
sketch6.addConstraint(Sketcher.Constraint("Tangent", 5, 2, 6, 1))
sketch6.addConstraint(Sketcher.Constraint("Tangent", 6, 2, 7, 1))
sketch6.addConstraint(Sketcher.Constraint("Tangent", 7, 2, 8, 1))
sketch6.addConstraint(Sketcher.Constraint("Coincident", 8, 2, 9, 1))
sketch6.addConstraint(Sketcher.Constraint("Coincident", 9, 2, 10, 1))
sketch6.addConstraint(Sketcher.Constraint("Coincident", 10, 2, 11, 1))
sketch6.addConstraint(Sketcher.Constraint("Tangent", 11, 2, 0, 1))
sketch6.addConstraint(Sketcher.Constraint("Horizontal", 1))
sketch6.addConstraint(Sketcher.Constraint("Horizontal", 3))
sketch6.addConstraint(Sketcher.Constraint("Horizontal", 8))
sketch6.addConstraint(Sketcher.Constraint("Horizontal", 10))
sketch6.addConstraint(Sketcher.Constraint("Coincident", 2, 3, 0, 3))
sketch6.addConstraint(Sketcher.Constraint("Coincident", 4, 3, 0, 3))
sketch6.addConstraint(Sketcher.Constraint("Coincident", 6, 3, 0, 3))
sketch6.addConstraint(Sketcher.Constraint("Coincident", 9, 3, 0, 3))
sketch6.addConstraint(Sketcher.Constraint("Coincident", 12, 3, 0, 3))
sketch6.addConstraint(Sketcher.Constraint("Equal", 0, 4))
sketch6.addConstraint(Sketcher.Constraint("Equal", 6, 7))
sketch6.addConstraint(Sketcher.Constraint("Equal", 2, 9))
sketch6.addConstraint(Sketcher.Constraint("Equal", 7, 11))
sketch6.addConstraint(Sketcher.Constraint("Horizontal", 1, 2, 4, 2))
sketch6.addConstraint(Sketcher.Constraint("Horizontal", 12, 3, 5, 2))
sketch6.addConstraint(Sketcher.Constraint("Horizontal", 6, 2, 9, 2))
sketch6.addConstraint(Sketcher.Constraint("Horizontal", 5, 2, 11, 2))
sketch6.addConstraint(Sketcher.Constraint("Vertical", 4, 2, 6, 2))
sketch6.addConstraint(Sketcher.Constraint("Radius", 0, 10.0))
sketch6.addConstraint(Sketcher.Constraint("Diameter", 12, 3.2))
sketch6.addConstraint(Sketcher.Constraint("Radius", 2, 13.85))
sketch6.addConstraint(Sketcher.Constraint("DistanceY", 9, 2, 1, 2, 12.3))
sketch6.addConstraint(Sketcher.Constraint("DistanceY", -1, 1, 0, 3, 30.914318))
sketch6.addConstraint(Sketcher.Constraint("DistanceX", 1, 2, -1, 1, 74.01347))
pocket5 = body.newObject("PartDesign::Pocket", "Pocket004")
pocket5.Profile = sketch6
pocket5.Length = 15
pocket5.Reversed = True

# Sketch on XY plane
sketch7 = body.newObject("Sketcher::SketchObject", "Sketch006")
sketch7.AttachmentSupport = (doc.getObject("XY_Plane"), [""])
sketch7.MapMode = "FlatFace"
add_polygon(sketch7, [(-89, 36), (-89, 26), (-84, 26), (-84, 36)])  # lines 0-3
sketch7.addConstraint(Sketcher.Constraint("Vertical", 0))
sketch7.addConstraint(Sketcher.Constraint("Horizontal", 1))
sketch7.addConstraint(Sketcher.Constraint("Vertical", 2))
sketch7.addConstraint(Sketcher.Constraint("Horizontal", 3))
sketch7.addConstraint(Sketcher.Constraint("DistanceX", 1, 1, 1, 2, 5.0))
sketch7.addConstraint(Sketcher.Constraint("DistanceY", 0, 2, 0, 1, 10.0))
sketch7.addConstraint(Sketcher.Constraint("DistanceY", -1, 1, 0, 2, 25.914318))
sketch7.addConstraint(Sketcher.Constraint("DistanceX", 0, 2, -1, 1, 88.923144))
pocket6 = body.newObject("PartDesign::Pocket", "Pocket005")
pocket6.Profile = sketch7
pocket6.Length = 2.5
pocket6.Reversed = True

# Sketch on XY plane
sketch8 = body.newObject("Sketcher::SketchObject", "Sketch007")
sketch8.AttachmentSupport = (doc.getObject("XY_Plane"), [""])
sketch8.MapMode = "FlatFace"
sketch8.AttachmentOffset = App.Placement(App.Vector(0, 0, 22), App.Rotation())
add_polygon(sketch8, [(-16.4, 32.6), (-16.4, 29.3), (-10.3, 29.3), (-10.3, 32.6)])  # lines 0-3
sketch8.addConstraint(Sketcher.Constraint("Vertical", 0))
sketch8.addConstraint(Sketcher.Constraint("Horizontal", 1))
sketch8.addConstraint(Sketcher.Constraint("Vertical", 2))
sketch8.addConstraint(Sketcher.Constraint("Horizontal", 3))
sketch8.addConstraint(Sketcher.Constraint("DistanceX", 1, 1, 1, 2, 6.087348))
sketch8.addConstraint(Sketcher.Constraint("DistanceY", 0, 2, 0, 1, 3.278859))
sketch8.addConstraint(Sketcher.Constraint("DistanceY", -1, 1, 0, 2, 29.274888))
sketch8.addConstraint(Sketcher.Constraint("DistanceX", 1, 2, -1, 1, 10.30447))
pocket7 = body.newObject("PartDesign::Pocket", "Pocket006")
pocket7.Profile = sketch8
pocket7.Length = 25

doc.recompute()
